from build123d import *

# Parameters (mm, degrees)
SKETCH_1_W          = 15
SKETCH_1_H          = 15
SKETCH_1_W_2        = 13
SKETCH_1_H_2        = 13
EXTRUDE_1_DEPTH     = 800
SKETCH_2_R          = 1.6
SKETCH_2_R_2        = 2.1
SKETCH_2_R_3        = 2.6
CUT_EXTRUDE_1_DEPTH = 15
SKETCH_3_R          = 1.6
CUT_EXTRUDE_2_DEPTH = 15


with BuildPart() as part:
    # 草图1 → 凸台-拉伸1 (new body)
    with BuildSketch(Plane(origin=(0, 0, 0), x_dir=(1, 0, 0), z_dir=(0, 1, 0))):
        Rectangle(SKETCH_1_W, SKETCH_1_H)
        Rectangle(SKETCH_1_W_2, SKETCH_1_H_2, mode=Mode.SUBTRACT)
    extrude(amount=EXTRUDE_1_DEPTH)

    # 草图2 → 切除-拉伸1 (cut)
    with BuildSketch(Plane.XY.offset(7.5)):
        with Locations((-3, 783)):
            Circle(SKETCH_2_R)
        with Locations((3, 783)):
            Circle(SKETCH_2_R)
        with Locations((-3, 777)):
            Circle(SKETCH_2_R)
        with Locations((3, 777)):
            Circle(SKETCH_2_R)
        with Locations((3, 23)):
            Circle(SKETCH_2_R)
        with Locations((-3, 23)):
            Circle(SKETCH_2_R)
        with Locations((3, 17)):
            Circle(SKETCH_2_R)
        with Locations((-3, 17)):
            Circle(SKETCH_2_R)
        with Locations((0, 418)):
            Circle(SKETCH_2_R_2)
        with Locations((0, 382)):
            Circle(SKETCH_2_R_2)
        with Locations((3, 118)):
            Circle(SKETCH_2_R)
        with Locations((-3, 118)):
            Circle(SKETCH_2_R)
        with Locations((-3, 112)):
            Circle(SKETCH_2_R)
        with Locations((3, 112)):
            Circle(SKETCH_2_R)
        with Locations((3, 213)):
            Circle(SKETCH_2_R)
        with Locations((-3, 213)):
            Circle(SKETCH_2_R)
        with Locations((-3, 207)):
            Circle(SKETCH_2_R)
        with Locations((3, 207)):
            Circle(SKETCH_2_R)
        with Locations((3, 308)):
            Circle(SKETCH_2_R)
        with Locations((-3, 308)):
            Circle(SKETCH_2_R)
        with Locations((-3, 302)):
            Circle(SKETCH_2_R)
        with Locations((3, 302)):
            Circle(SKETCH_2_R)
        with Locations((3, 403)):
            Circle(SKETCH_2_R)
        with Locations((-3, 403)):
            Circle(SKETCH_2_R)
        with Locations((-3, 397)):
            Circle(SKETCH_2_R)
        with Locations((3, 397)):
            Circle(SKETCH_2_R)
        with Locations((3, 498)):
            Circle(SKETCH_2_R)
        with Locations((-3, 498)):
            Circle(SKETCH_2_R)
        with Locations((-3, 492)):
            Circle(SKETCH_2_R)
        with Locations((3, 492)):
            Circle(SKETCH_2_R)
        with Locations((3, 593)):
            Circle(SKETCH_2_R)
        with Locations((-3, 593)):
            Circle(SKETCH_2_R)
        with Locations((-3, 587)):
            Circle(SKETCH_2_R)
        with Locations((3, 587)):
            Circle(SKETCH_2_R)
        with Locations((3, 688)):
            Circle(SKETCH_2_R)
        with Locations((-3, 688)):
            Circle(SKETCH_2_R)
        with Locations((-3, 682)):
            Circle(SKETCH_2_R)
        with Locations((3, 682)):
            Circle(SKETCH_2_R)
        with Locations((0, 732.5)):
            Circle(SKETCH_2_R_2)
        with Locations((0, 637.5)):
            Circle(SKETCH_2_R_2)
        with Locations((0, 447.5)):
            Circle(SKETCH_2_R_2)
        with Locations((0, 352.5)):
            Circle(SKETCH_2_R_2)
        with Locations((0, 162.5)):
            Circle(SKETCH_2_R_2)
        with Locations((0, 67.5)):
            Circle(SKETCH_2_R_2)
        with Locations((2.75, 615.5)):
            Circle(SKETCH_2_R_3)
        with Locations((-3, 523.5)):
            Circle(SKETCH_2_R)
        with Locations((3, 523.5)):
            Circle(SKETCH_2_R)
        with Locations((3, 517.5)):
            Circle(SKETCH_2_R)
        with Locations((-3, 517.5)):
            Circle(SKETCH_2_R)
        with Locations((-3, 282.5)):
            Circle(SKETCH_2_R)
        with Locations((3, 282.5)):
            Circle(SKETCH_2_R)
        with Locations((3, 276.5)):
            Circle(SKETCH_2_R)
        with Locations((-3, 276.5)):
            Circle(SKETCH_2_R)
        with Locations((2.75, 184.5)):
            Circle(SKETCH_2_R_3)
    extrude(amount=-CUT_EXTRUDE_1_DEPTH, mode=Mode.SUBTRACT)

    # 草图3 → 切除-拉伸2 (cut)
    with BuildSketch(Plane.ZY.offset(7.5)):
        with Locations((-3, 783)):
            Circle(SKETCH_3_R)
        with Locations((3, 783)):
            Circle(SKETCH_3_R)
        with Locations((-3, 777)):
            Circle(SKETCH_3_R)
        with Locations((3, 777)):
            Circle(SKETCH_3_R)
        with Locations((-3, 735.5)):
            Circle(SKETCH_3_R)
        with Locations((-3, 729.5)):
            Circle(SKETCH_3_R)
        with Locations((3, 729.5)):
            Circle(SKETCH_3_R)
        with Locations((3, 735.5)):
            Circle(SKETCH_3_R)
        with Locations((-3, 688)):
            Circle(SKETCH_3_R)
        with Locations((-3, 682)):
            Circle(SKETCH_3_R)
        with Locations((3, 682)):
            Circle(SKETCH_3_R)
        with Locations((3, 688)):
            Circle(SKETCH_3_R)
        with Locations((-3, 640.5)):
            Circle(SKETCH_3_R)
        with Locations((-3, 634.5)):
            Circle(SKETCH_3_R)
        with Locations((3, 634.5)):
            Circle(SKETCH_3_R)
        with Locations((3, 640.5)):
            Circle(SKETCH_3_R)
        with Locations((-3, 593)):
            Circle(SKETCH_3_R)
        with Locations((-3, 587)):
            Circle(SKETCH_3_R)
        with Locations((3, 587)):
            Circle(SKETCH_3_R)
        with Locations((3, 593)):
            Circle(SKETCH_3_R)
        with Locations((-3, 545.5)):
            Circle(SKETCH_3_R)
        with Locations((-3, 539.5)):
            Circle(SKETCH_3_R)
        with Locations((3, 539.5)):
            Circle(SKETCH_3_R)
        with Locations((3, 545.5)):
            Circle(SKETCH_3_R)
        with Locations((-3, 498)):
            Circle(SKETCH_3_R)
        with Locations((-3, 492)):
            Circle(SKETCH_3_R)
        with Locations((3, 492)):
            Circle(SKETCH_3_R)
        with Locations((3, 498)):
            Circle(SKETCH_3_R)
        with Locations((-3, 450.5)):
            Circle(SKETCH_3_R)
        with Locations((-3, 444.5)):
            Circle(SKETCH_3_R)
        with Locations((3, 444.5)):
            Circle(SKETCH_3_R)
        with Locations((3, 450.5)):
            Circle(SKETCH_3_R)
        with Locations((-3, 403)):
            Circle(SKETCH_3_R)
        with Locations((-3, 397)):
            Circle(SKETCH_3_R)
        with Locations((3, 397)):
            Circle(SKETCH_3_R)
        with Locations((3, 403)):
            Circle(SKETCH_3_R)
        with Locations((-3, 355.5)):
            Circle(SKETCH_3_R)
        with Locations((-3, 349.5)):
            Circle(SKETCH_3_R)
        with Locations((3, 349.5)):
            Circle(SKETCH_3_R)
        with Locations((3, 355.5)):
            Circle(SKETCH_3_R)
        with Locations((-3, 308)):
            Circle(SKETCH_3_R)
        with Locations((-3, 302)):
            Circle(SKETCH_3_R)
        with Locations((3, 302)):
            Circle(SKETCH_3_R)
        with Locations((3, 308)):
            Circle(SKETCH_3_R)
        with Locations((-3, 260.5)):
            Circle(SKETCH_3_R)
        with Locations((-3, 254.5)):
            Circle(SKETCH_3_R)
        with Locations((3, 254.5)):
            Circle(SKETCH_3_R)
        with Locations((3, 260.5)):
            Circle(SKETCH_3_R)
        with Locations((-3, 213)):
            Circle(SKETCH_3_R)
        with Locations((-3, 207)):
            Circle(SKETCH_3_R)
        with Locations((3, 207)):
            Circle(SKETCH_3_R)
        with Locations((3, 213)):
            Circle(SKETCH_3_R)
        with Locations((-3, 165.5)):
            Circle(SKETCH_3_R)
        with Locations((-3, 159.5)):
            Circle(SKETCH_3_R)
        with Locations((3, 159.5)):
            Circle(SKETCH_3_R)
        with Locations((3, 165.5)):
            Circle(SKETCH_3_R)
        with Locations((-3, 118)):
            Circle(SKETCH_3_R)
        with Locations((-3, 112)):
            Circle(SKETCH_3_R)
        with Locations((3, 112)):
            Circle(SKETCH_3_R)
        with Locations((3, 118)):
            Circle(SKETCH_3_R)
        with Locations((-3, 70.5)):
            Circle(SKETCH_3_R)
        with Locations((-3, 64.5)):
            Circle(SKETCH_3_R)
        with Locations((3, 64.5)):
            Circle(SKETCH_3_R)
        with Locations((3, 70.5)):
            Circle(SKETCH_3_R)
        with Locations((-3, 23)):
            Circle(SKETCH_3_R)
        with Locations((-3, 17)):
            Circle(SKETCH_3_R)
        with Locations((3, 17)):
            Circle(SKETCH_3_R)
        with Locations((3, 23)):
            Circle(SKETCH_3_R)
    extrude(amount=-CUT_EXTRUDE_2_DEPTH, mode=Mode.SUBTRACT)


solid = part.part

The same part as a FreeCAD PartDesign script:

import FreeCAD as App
import Part
import Sketcher
Q = App.Units.Quantity

doc = App.newDocument("Part")
body = doc.addObject("PartDesign::Body", "Body")

# Sketch on XZ plane
sketch1 = body.newObject("Sketcher::SketchObject", "Sketch")
sketch1.AttachmentSupport = (doc.getObject("XZ_Plane"), [""])
sketch1.MapMode = "FlatFace"
sketch1.addGeometry([
    Part.LineSegment(App.Vector(-7.5, -7.5, 0), App.Vector(-7.5, 7.5, 0)),  # 0
    Part.LineSegment(App.Vector(-7.5, 7.5, 0), App.Vector(7.5, 7.5, 0)),  # 1
    Part.LineSegment(App.Vector(7.5, 7.5, 0), App.Vector(7.5, -7.5, 0)),  # 2
    Part.LineSegment(App.Vector(7.5, -7.5, 0), App.Vector(-7.5, -7.5, 0)),  # 3
    Part.LineSegment(App.Vector(6.5, 6.5, 0), App.Vector(-6.5, 6.5, 0)),  # 4
    Part.LineSegment(App.Vector(-6.5, 6.5, 0), App.Vector(-6.5, -6.5, 0)),  # 5
    Part.LineSegment(App.Vector(-6.5, -6.5, 0), App.Vector(6.5, -6.5, 0)),  # 6
    Part.LineSegment(App.Vector(6.5, -6.5, 0), App.Vector(6.5, 6.5, 0)),  # 7
], False)
sketch1.addConstraint([
    Sketcher.Constraint("Coincident", 0, 2, 1, 1),
    Sketcher.Constraint("Coincident", 1, 2, 2, 1),
    Sketcher.Constraint("Coincident", 2, 2, 3, 1),
    Sketcher.Constraint("Coincident", 3, 2, 0, 1),
    Sketcher.Constraint("Coincident", 4, 2, 5, 1),
    Sketcher.Constraint("Coincident", 5, 2, 6, 1),
    Sketcher.Constraint("Coincident", 6, 2, 7, 1),
    Sketcher.Constraint("Coincident", 7, 2, 4, 1),
    Sketcher.Constraint("Vertical", 0),
    Sketcher.Constraint("Horizontal", 1),
    Sketcher.Constraint("Vertical", 2),
    Sketcher.Constraint("Horizontal", 3),
    Sketcher.Constraint("Horizontal", 4),
    Sketcher.Constraint("Vertical", 5),
    Sketcher.Constraint("Horizontal", 6),
    Sketcher.Constraint("Vertical", 7),
    Sketcher.Constraint("Symmetric", 0, 2, 2, 2, -1, 1),
    Sketcher.Constraint("Symmetric", 4, 2, 6, 2, -1, 1),
    Sketcher.Constraint("Equal", 3, 0),
    Sketcher.Constraint("Equal", 6, 5),
    Sketcher.Constraint("DistanceX", 1, 1, 1, 2, Q("15 mm")),
    Sketcher.Constraint("DistanceX", 4, 2, 4, 1, Q("13 mm")),
])
pad1 = body.newObject("PartDesign::Pad", "Pad")
pad1.Profile = sketch1
pad1.Length = 800
pad1.Reversed = True

# Sketch on XY plane
sketch2 = body.newObject("Sketcher::SketchObject", "Sketch001")
sketch2.AttachmentSupport = (doc.getObject("XY_Plane"), [""])
sketch2.MapMode = "FlatFace"
sketch2.AttachmentOffset = App.Placement(App.Vector(0, 0, 7.5), App.Rotation())
sketch2.addGeometry([
    Part.Circle(App.Vector(-3, 783, 0), App.Vector(0, 0, 1), 1.6),  # 0
    Part.Circle(App.Vector(3, 783, 0), App.Vector(0, 0, 1), 1.6),  # 1
    Part.Circle(App.Vector(-3, 777, 0), App.Vector(0, 0, 1), 1.6),  # 2
    Part.Circle(App.Vector(3, 777, 0), App.Vector(0, 0, 1), 1.6),  # 3
    Part.Circle(App.Vector(3, 23, 0), App.Vector(0, 0, 1), 1.6),  # 4
    Part.Circle(App.Vector(-3, 23, 0), App.Vector(0, 0, 1), 1.6),  # 5
    Part.Circle(App.Vector(3, 17, 0), App.Vector(0, 0, 1), 1.6),  # 6
    Part.Circle(App.Vector(-3, 17, 0), App.Vector(0, 0, 1), 1.6),  # 7
    Part.Circle(App.Vector(0, 418, 0), App.Vector(0, 0, 1), 2.1),  # 8
    Part.Circle(App.Vector(0, 382, 0), App.Vector(0, 0, 1), 2.1),  # 9
    Part.Circle(App.Vector(3, 118, 0), App.Vector(0, 0, 1), 1.6),  # 10
    Part.Circle(App.Vector(-3, 118, 0), App.Vector(0, 0, 1), 1.6),  # 11
    Part.Circle(App.Vector(-3, 112, 0), App.Vector(0, 0, 1), 1.6),  # 12
    Part.Circle(App.Vector(3, 112, 0), App.Vector(0, 0, 1), 1.6),  # 13
    Part.Circle(App.Vector(3, 213, 0), App.Vector(0, 0, 1), 1.6),  # 14
    Part.Circle(App.Vector(-3, 213, 0), App.Vector(0, 0, 1), 1.6),  # 15
    Part.Circle(App.Vector(-3, 207, 0), App.Vector(0, 0, 1), 1.6),  # 16
    Part.Circle(App.Vector(3, 207, 0), App.Vector(0, 0, 1), 1.6),  # 17
    Part.Circle(App.Vector(3, 308, 0), App.Vector(0, 0, 1), 1.6),  # 18
    Part.Circle(App.Vector(-3, 308, 0), App.Vector(0, 0, 1), 1.6),  # 19
    Part.Circle(App.Vector(-3, 302, 0), App.Vector(0, 0, 1), 1.6),  # 20
    Part.Circle(App.Vector(3, 302, 0), App.Vector(0, 0, 1), 1.6),  # 21
    Part.Circle(App.Vector(3, 403, 0), App.Vector(0, 0, 1), 1.6),  # 22
    Part.Circle(App.Vector(-3, 403, 0), App.Vector(0, 0, 1), 1.6),  # 23
    Part.Circle(App.Vector(-3, 397, 0), App.Vector(0, 0, 1), 1.6),  # 24
    Part.Circle(App.Vector(3, 397, 0), App.Vector(0, 0, 1), 1.6),  # 25
    Part.Circle(App.Vector(3, 498, 0), App.Vector(0, 0, 1), 1.6),  # 26
    Part.Circle(App.Vector(-3, 498, 0), App.Vector(0, 0, 1), 1.6),  # 27
    Part.Circle(App.Vector(-3, 492, 0), App.Vector(0, 0, 1), 1.6),  # 28
    Part.Circle(App.Vector(3, 492, 0), App.Vector(0, 0, 1), 1.6),  # 29
    Part.Circle(App.Vector(3, 593, 0), App.Vector(0, 0, 1), 1.6),  # 30
    Part.Circle(App.Vector(-3, 593, 0), App.Vector(0, 0, 1), 1.6),  # 31
    Part.Circle(App.Vector(-3, 587, 0), App.Vector(0, 0, 1), 1.6),  # 32
    Part.Circle(App.Vector(3, 587, 0), App.Vector(0, 0, 1), 1.6),  # 33
    Part.Circle(App.Vector(3, 688, 0), App.Vector(0, 0, 1), 1.6),  # 34
    Part.Circle(App.Vector(-3, 688, 0), App.Vector(0, 0, 1), 1.6),  # 35
    Part.Circle(App.Vector(-3, 682, 0), App.Vector(0, 0, 1), 1.6),  # 36
    Part.Circle(App.Vector(3, 682, 0), App.Vector(0, 0, 1), 1.6),  # 37
    Part.Circle(App.Vector(0, 732.5, 0), App.Vector(0, 0, 1), 2.1),  # 38
    Part.Circle(App.Vector(0, 637.5, 0), App.Vector(0, 0, 1), 2.1),  # 39
    Part.Circle(App.Vector(0, 447.5, 0), App.Vector(0, 0, 1), 2.1),  # 40
    Part.Circle(App.Vector(0, 352.5, 0), App.Vector(0, 0, 1), 2.1),  # 41
    Part.Circle(App.Vector(0, 162.5, 0), App.Vector(0, 0, 1), 2.1),  # 42
    Part.Circle(App.Vector(0, 67.5, 0), App.Vector(0, 0, 1), 2.1),  # 43
    Part.Circle(App.Vector(2.75, 615.5, 0), App.Vector(0, 0, 1), 2.6),  # 44
    Part.Circle(App.Vector(-3, 523.5, 0), App.Vector(0, 0, 1), 1.6),  # 45
    Part.Circle(App.Vector(3, 523.5, 0), App.Vector(0, 0, 1), 1.6),  # 46
    Part.Circle(App.Vector(3, 517.5, 0), App.Vector(0, 0, 1), 1.6),  # 47
    Part.Circle(App.Vector(-3, 517.5, 0), App.Vector(0, 0, 1), 1.6),  # 48
    Part.Circle(App.Vector(-3, 282.5, 0), App.Vector(0, 0, 1), 1.6),  # 49
    Part.Circle(App.Vector(3, 282.5, 0), App.Vector(0, 0, 1), 1.6),  # 50
    Part.Circle(App.Vector(3, 276.5, 0), App.Vector(0, 0, 1), 1.6),  # 51
    Part.Circle(App.Vector(-3, 276.5, 0), App.Vector(0, 0, 1), 1.6),  # 52
    Part.Circle(App.Vector(2.75, 184.5, 0), App.Vector(0, 0, 1), 2.6),  # 53
], False)
sketch2.addConstraint([
    Sketcher.Constraint("Equal", 0, 1),
    Sketcher.Constraint("Equal", 1, 2),
    Sketcher.Constraint("Equal", 2, 3),
    Sketcher.Constraint("Equal", 3, 4),
    Sketcher.Constraint("Equal", 4, 5),
    Sketcher.Constraint("Equal", 5, 6),
    Sketcher.Constraint("Equal", 6, 7),
    Sketcher.Constraint("Equal", 8, 9),
    Sketcher.Constraint("Equal", 7, 10),
    Sketcher.Constraint("Equal", 10, 11),
    Sketcher.Constraint("Equal", 11, 12),
    Sketcher.Constraint("Equal", 12, 13),
    Sketcher.Constraint("Equal", 13, 14),
    Sketcher.Constraint("Equal", 14, 15),
    Sketcher.Constraint("Equal", 15, 16),
    Sketcher.Constraint("Equal", 16, 17),
    Sketcher.Constraint("Equal", 17, 18),
    Sketcher.Constraint("Equal", 18, 19),
    Sketcher.Constraint("Equal", 19, 20),
    Sketcher.Constraint("Equal", 20, 21),
    Sketcher.Constraint("Equal", 21, 22),
    Sketcher.Constraint("Equal", 22, 23),
    Sketcher.Constraint("Equal", 23, 24),
    Sketcher.Constraint("Equal", 24, 25),
    Sketcher.Constraint("Equal", 25, 26),
    Sketcher.Constraint("Equal", 26, 27),
    Sketcher.Constraint("Equal", 27, 28),
    Sketcher.Constraint("Equal", 28, 29),
    Sketcher.Constraint("Equal", 29, 30),
    Sketcher.Constraint("Equal", 30, 31),
    Sketcher.Constraint("Equal", 31, 32),
    Sketcher.Constraint("Equal", 32, 33),
    Sketcher.Constraint("Equal", 33, 34),
    Sketcher.Constraint("Equal", 34, 35),
    Sketcher.Constraint("Equal", 35, 36),
    Sketcher.Constraint("Equal", 36, 37),
    Sketcher.Constraint("Equal", 9, 38),
    Sketcher.Constraint("Equal", 38, 39),
    Sketcher.Constraint("Equal", 39, 40),
    Sketcher.Constraint("Equal", 40, 41),
    Sketcher.Constraint("Equal", 41, 42),
    Sketcher.Constraint("Equal", 42, 43),
    Sketcher.Constraint("Equal", 37, 45),
    Sketcher.Constraint("Equal", 45, 46),
    Sketcher.Constraint("Equal", 46, 47),
    Sketcher.Constraint("Equal", 47, 48),
    Sketcher.Constraint("Equal", 48, 49),
    Sketcher.Constraint("Equal", 49, 50),
    Sketcher.Constraint("Equal", 50, 51),
    Sketcher.Constraint("Equal", 51, 52),
    Sketcher.Constraint("Equal", 44, 53),
    Sketcher.Constraint("Symmetric", 0, 3, 1, 3, -2),
    Sketcher.Constraint("Symmetric", 2, 3, 3, 3, -2),
    Sketcher.Constraint("Symmetric", 4, 3, 5, 3, -2),
    Sketcher.Constraint("Symmetric", 6, 3, 7, 3, -2),
    Sketcher.Constraint("Symmetric", 10, 3, 11, 3, -2),
    Sketcher.Constraint("Symmetric", 12, 3, 13, 3, -2),
    Sketcher.Constraint("Symmetric", 14, 3, 15, 3, -2),
    Sketcher.Constraint("Symmetric", 16, 3, 17, 3, -2),
    Sketcher.Constraint("Symmetric", 18, 3, 19, 3, -2),
    Sketcher.Constraint("Symmetric", 20, 3, 21, 3, -2),
    Sketcher.Constraint("Symmetric", 22, 3, 23, 3, -2),
    Sketcher.Constraint("Symmetric", 24, 3, 25, 3, -2),
    Sketcher.Constraint("Symmetric", 26, 3, 27, 3, -2),
    Sketcher.Constraint("Symmetric", 28, 3, 29, 3, -2),
    Sketcher.Constraint("Symmetric", 30, 3, 31, 3, -2),
    Sketcher.Constraint("Symmetric", 32, 3, 33, 3, -2),
    Sketcher.Constraint("Symmetric", 34, 3, 35, 3, -2),
    Sketcher.Constraint("Symmetric", 36, 3, 37, 3, -2),
    Sketcher.Constraint("Symmetric", 45, 3, 46, 3, -2),
    Sketcher.Constraint("Symmetric", 47, 3, 48, 3, -2),
    Sketcher.Constraint("Symmetric", 49, 3, 50, 3, -2),
    Sketcher.Constraint("Symmetric", 51, 3, 52, 3, -2),
    Sketcher.Constraint("PointOnObject", 8, 3, -2),
    Sketcher.Constraint("PointOnObject", 9, 3, -2),
    Sketcher.Constraint("PointOnObject", 38, 3, -2),
    Sketcher.Constraint("PointOnObject", 39, 3, -2),
    Sketcher.Constraint("PointOnObject", 40, 3, -2),
    Sketcher.Constraint("PointOnObject", 41, 3, -2),
    Sketcher.Constraint("PointOnObject", 42, 3, -2),
    Sketcher.Constraint("PointOnObject", 43, 3, -2),
    Sketcher.Constraint("Vertical", 0, 3, 2, 3),
    Sketcher.Constraint("Vertical", 3, 3, 4, 3),
    Sketcher.Constraint("Vertical", 4, 3, 6, 3),
    Sketcher.Constraint("Vertical", 6, 3, 10, 3),
    Sketcher.Constraint("Vertical", 11, 3, 12, 3),
    Sketcher.Constraint("Vertical", 13, 3, 14, 3),
    Sketcher.Constraint("Vertical", 15, 3, 16, 3),
    Sketcher.Constraint("Vertical", 17, 3, 18, 3),
    Sketcher.Constraint("Vertical", 19, 3, 20, 3),
    Sketcher.Constraint("Vertical", 21, 3, 22, 3),
    Sketcher.Constraint("Vertical", 23, 3, 24, 3),
    Sketcher.Constraint("Vertical", 25, 3, 26, 3),
    Sketcher.Constraint("Vertical", 27, 3, 28, 3),
    Sketcher.Constraint("Vertical", 29, 3, 30, 3),
    Sketcher.Constraint("Vertical", 31, 3, 32, 3),
    Sketcher.Constraint("Vertical", 33, 3, 34, 3),
    Sketcher.Constraint("Vertical", 35, 3, 36, 3),
    Sketcher.Constraint("Vertical", 36, 3, 45, 3),
    Sketcher.Constraint("Vertical", 46, 3, 47, 3),
    Sketcher.Constraint("Vertical", 48, 3, 49, 3),
    Sketcher.Constraint("Vertical", 50, 3, 51, 3),
    Sketcher.Constraint("Vertical", 44, 3, 53, 3),
    Sketcher.Constraint("Diameter", 0, Q("3.2 mm")),
    Sketcher.Constraint("Diameter", 8, Q("4.2 mm")),
    Sketcher.Constraint("Diameter", 44, Q("5.2 mm")),
    Sketcher.Constraint("DistanceX", 0, 3, -1, 1, Q("3 mm")),
    Sketcher.Constraint("DistanceY", -1, 1, 0, 3, Q("783 mm")),
    Sketcher.Constraint("DistanceY", -1, 1, 2, 3, Q("777 mm")),
    Sketcher.Constraint("DistanceY", -1, 1, 4, 3, Q("23 mm")),
    Sketcher.Constraint("DistanceY", -1, 1, 6, 3, Q("17 mm")),
    Sketcher.Constraint("DistanceY", -1, 1, 8, 3, Q("418 mm")),
    Sketcher.Constraint("DistanceY", -1, 1, 9, 3, Q("382 mm")),
    Sketcher.Constraint("DistanceY", -1, 1, 10, 3, Q("118 mm")),
    Sketcher.Constraint("DistanceY", -1, 1, 12, 3, Q("112 mm")),
    Sketcher.Constraint("DistanceY", -1, 1, 14, 3, Q("213 mm")),
    Sketcher.Constraint("DistanceY", -1, 1, 16, 3, Q("207 mm")),
    Sketcher.Constraint("DistanceY", -1, 1, 18, 3, Q("308 mm")),
    Sketcher.Constraint("DistanceY", -1, 1, 20, 3, Q("302 mm")),
    Sketcher.Constraint("DistanceY", -1, 1, 22, 3, Q("403 mm")),
    Sketcher.Constraint("DistanceY", -1, 1, 24, 3, Q("397 mm")),
    Sketcher.Constraint("DistanceY", -1, 1, 26, 3, Q("498 mm")),
    Sketcher.Constraint("DistanceY", -1, 1, 28, 3, Q("492 mm")),
    Sketcher.Constraint("DistanceY", -1, 1, 30, 3, Q("593 mm")),
    Sketcher.Constraint("DistanceY", -1, 1, 32, 3, Q("587 mm")),
    Sketcher.Constraint("DistanceY", -1, 1, 34, 3, Q("688 mm")),
    Sketcher.Constraint("DistanceY", -1, 1, 36, 3, Q("682 mm")),
    Sketcher.Constraint("DistanceY", 44, 3, 39, 3, Q("22 mm")),
    Sketcher.Constraint("DistanceY", 47, 3, 46, 3, Q("6 mm")),
    Sketcher.Constraint("DistanceY", 51, 3, 50, 3, Q("6 mm")),
    Sketcher.Constraint("DistanceY", 42, 3, 53, 3, Q("22 mm")),
    Sketcher.Constraint("DistanceY", -1, 1, 38, 3, Q("732.5 mm")),
    Sketcher.Constraint("DistanceY", -1, 1, 39, 3, Q("637.5 mm")),
    Sketcher.Constraint("DistanceY", -1, 1, 40, 3, Q("447.5 mm")),
    Sketcher.Constraint("DistanceY", -1, 1, 41, 3, Q("352.5 mm")),
    Sketcher.Constraint("DistanceY", -1, 1, 42, 3, Q("162.5 mm")),
    Sketcher.Constraint("DistanceY", -1, 1, 43, 3, Q("67.5 mm")),
    Sketcher.Constraint("DistanceY", -1, 1, 45, 3, Q("523.5 mm")),
    Sketcher.Constraint("DistanceY", -1, 1, 49, 3, Q("282.5 mm")),
    Sketcher.Constraint("DistanceX", -1, 1, 44, 3, Q("2.75 mm")),
])
pocket1 = body.newObject("PartDesign::Pocket", "Pocket")
pocket1.Profile = sketch2
pocket1.Length = 15

# Sketch on YZ plane
sketch3 = body.newObject("Sketcher::SketchObject", "Sketch002")
sketch3.AttachmentSupport = (doc.getObject("YZ_Plane"), [""])
sketch3.MapMode = "FlatFace"
sketch3.AttachmentOffset = App.Placement(App.Vector(0, 0, -7.5), App.Rotation())
sketch3.addGeometry([
    Part.Circle(App.Vector(783, -3, 0), App.Vector(0, 0, 1), 1.6),  # 0
    Part.Circle(App.Vector(783, 3, 0), App.Vector(0, 0, 1), 1.6),  # 1
    Part.Circle(App.Vector(777, -3, 0), App.Vector(0, 0, 1), 1.6),  # 2
    Part.Circle(App.Vector(777, 3, 0), App.Vector(0, 0, 1), 1.6),  # 3
    Part.Circle(App.Vector(735.5, -3, 0), App.Vector(0, 0, 1), 1.6),  # 4
    Part.Circle(App.Vector(729.5, -3, 0), App.Vector(0, 0, 1), 1.6),  # 5
    Part.Circle(App.Vector(729.5, 3, 0), App.Vector(0, 0, 1), 1.6),  # 6
    Part.Circle(App.Vector(735.5, 3, 0), App.Vector(0, 0, 1), 1.6),  # 7
    Part.Circle(App.Vector(688, -3, 0), App.Vector(0, 0, 1), 1.6),  # 8
    Part.Circle(App.Vector(682, -3, 0), App.Vector(0, 0, 1), 1.6),  # 9
    Part.Circle(App.Vector(682, 3, 0), App.Vector(0, 0, 1), 1.6),  # 10
    Part.Circle(App.Vector(688, 3, 0), App.Vector(0, 0, 1), 1.6),  # 11
    Part.Circle(App.Vector(640.5, -3, 0), App.Vector(0, 0, 1), 1.6),  # 12
    Part.Circle(App.Vector(634.5, -3, 0), App.Vector(0, 0, 1), 1.6),  # 13
    Part.Circle(App.Vector(634.5, 3, 0), App.Vector(0, 0, 1), 1.6),  # 14
    Part.Circle(App.Vector(640.5, 3, 0), App.Vector(0, 0, 1), 1.6),  # 15
    Part.Circle(App.Vector(593, -3, 0), App.Vector(0, 0, 1), 1.6),  # 16
    Part.Circle(App.Vector(587, -3, 0), App.Vector(0, 0, 1), 1.6),  # 17
    Part.Circle(App.Vector(587, 3, 0), App.Vector(0, 0, 1), 1.6),  # 18
    Part.Circle(App.Vector(593, 3, 0), App.Vector(0, 0, 1), 1.6),  # 19
    Part.Circle(App.Vector(545.5, -3, 0), App.Vector(0, 0, 1), 1.6),  # 20
    Part.Circle(App.Vector(539.5, -3, 0), App.Vector(0, 0, 1), 1.6),  # 21
    Part.Circle(App.Vector(539.5, 3, 0), App.Vector(0, 0, 1), 1.6),  # 22
    Part.Circle(App.Vector(545.5, 3, 0), App.Vector(0, 0, 1), 1.6),  # 23
    Part.Circle(App.Vector(498, -3, 0), App.Vector(0, 0, 1), 1.6),  # 24
    Part.Circle(App.Vector(492, -3, 0), App.Vector(0, 0, 1), 1.6),  # 25
    Part.Circle(App.Vector(492, 3, 0), App.Vector(0, 0, 1), 1.6),  # 26
    Part.Circle(App.Vector(498, 3, 0), App.Vector(0, 0, 1), 1.6),  # 27
    Part.Circle(App.Vector(450.5, -3, 0), App.Vector(0, 0, 1), 1.6),  # 28
    Part.Circle(App.Vector(444.5, -3, 0), App.Vector(0, 0, 1), 1.6),  # 29
    Part.Circle(App.Vector(444.5, 3, 0), App.Vector(0, 0, 1), 1.6),  # 30
    Part.Circle(App.Vector(450.5, 3, 0), App.Vector(0, 0, 1), 1.6),  # 31
    Part.Circle(App.Vector(403, -3, 0), App.Vector(0, 0, 1), 1.6),  # 32
    Part.Circle(App.Vector(397, -3, 0), App.Vector(0, 0, 1), 1.6),  # 33
    Part.Circle(App.Vector(397, 3, 0), App.Vector(0, 0, 1), 1.6),  # 34
    Part.Circle(App.Vector(403, 3, 0), App.Vector(0, 0, 1), 1.6),  # 35
    Part.Circle(App.Vector(355.5, -3, 0), App.Vector(0, 0, 1), 1.6),  # 36
    Part.Circle(App.Vector(349.5, -3, 0), App.Vector(0, 0, 1), 1.6),  # 37
    Part.Circle(App.Vector(349.5, 3, 0), App.Vector(0, 0, 1), 1.6),  # 38
    Part.Circle(App.Vector(355.5, 3, 0), App.Vector(0, 0, 1), 1.6),  # 39
    Part.Circle(App.Vector(308, -3, 0), App.Vector(0, 0, 1), 1.6),  # 40
    Part.Circle(App.Vector(302, -3, 0), App.Vector(0, 0, 1), 1.6),  # 41
    Part.Circle(App.Vector(302, 3, 0), App.Vector(0, 0, 1), 1.6),  # 42
    Part.Circle(App.Vector(308, 3, 0), App.Vector(0, 0, 1), 1.6),  # 43
    Part.Circle(App.Vector(260.5, -3, 0), App.Vector(0, 0, 1), 1.6),  # 44
    Part.Circle(App.Vector(254.5, -3, 0), App.Vector(0, 0, 1), 1.6),  # 45
    Part.Circle(App.Vector(254.5, 3, 0), App.Vector(0, 0, 1), 1.6),  # 46
    Part.Circle(App.Vector(260.5, 3, 0), App.Vector(0, 0, 1), 1.6),  # 47
    Part.Circle(App.Vector(213, -3, 0), App.Vector(0, 0, 1), 1.6),  # 48
    Part.Circle(App.Vector(207, -3, 0), App.Vector(0, 0, 1), 1.6),  # 49
    Part.Circle(App.Vector(207, 3, 0), App.Vector(0, 0, 1), 1.6),  # 50
    Part.Circle(App.Vector(213, 3, 0), App.Vector(0, 0, 1), 1.6),  # 51
    Part.Circle(App.Vector(165.5, -3, 0), App.Vector(0, 0, 1), 1.6),  # 52
    Part.Circle(App.Vector(159.5, -3, 0), App.Vector(0, 0, 1), 1.6),  # 53
    Part.Circle(App.Vector(159.5, 3, 0), App.Vector(0, 0, 1), 1.6),  # 54
    Part.Circle(App.Vector(165.5, 3, 0), App.Vector(0, 0, 1), 1.6),  # 55
    Part.Circle(App.Vector(118, -3, 0), App.Vector(0, 0, 1), 1.6),  # 56
    Part.Circle(App.Vector(112, -3, 0), App.Vector(0, 0, 1), 1.6),  # 57
    Part.Circle(App.Vector(112, 3, 0), App.Vector(0, 0, 1), 1.6),  # 58
    Part.Circle(App.Vector(118, 3, 0), App.Vector(0, 0, 1), 1.6),  # 59
    Part.Circle(App.Vector(70.5, -3, 0), App.Vector(0, 0, 1), 1.6),  # 60
    Part.Circle(App.Vector(64.5, -3, 0), App.Vector(0, 0, 1), 1.6),  # 61
    Part.Circle(App.Vector(64.5, 3, 0), App.Vector(0, 0, 1), 1.6),  # 62
    Part.Circle(App.Vector(70.5, 3, 0), App.Vector(0, 0, 1), 1.6),  # 63
    Part.Circle(App.Vector(23, -3, 0), App.Vector(0, 0, 1), 1.6),  # 64
    Part.Circle(App.Vector(17, -3, 0), App.Vector(0, 0, 1), 1.6),  # 65
    Part.Circle(App.Vector(17, 3, 0), App.Vector(0, 0, 1), 1.6),  # 66
    Part.Circle(App.Vector(23, 3, 0), App.Vector(0, 0, 1), 1.6),  # 67
], False)
sketch3.addConstraint([
    Sketcher.Constraint("Equal", 0, 1),
    Sketcher.Constraint("Equal", 1, 2),
    Sketcher.Constraint("Equal", 2, 3),
    Sketcher.Constraint("Equal", 3, 4),
    Sketcher.Constraint("Equal", 4, 5),
    Sketcher.Constraint("Equal", 5, 6),
    Sketcher.Constraint("Equal", 6, 7),
    Sketcher.Constraint("Equal", 7, 8),
    Sketcher.Constraint("Equal", 8, 9),
    Sketcher.Constraint("Equal", 9, 10),
    Sketcher.Constraint("Equal", 10, 11),
    Sketcher.Constraint("Equal", 11, 12),
    Sketcher.Constraint("Equal", 12, 13),
    Sketcher.Constraint("Equal", 13, 14),
    Sketcher.Constraint("Equal", 14, 15),
    Sketcher.Constraint("Equal", 15, 16),
    Sketcher.Constraint("Equal", 16, 17),
    Sketcher.Constraint("Equal", 17, 18),
    Sketcher.Constraint("Equal", 18, 19),
    Sketcher.Constraint("Equal", 19, 20),
    Sketcher.Constraint("Equal", 20, 21),
    Sketcher.Constraint("Equal", 21, 22),
    Sketcher.Constraint("Equal", 22, 23),
    Sketcher.Constraint("Equal", 23, 24),
    Sketcher.Constraint("Equal", 24, 25),
    Sketcher.Constraint("Equal", 25, 26),
    Sketcher.Constraint("Equal", 26, 27),
    Sketcher.Constraint("Equal", 27, 28),
    Sketcher.Constraint("Equal", 28, 29),
    Sketcher.Constraint("Equal", 29, 30),
    Sketcher.Constraint("Equal", 30, 31),
    Sketcher.Constraint("Equal", 31, 32),
    Sketcher.Constraint("Equal", 32, 33),
    Sketcher.Constraint("Equal", 33, 34),
    Sketcher.Constraint("Equal", 34, 35),
    Sketcher.Constraint("Equal", 35, 36),
    Sketcher.Constraint("Equal", 36, 37),
    Sketcher.Constraint("Equal", 37, 38),
    Sketcher.Constraint("Equal", 38, 39),
    Sketcher.Constraint("Equal", 39, 40),
    Sketcher.Constraint("Equal", 40, 41),
    Sketcher.Constraint("Equal", 41, 42),
    Sketcher.Constraint("Equal", 42, 43),
    Sketcher.Constraint("Equal", 43, 44),
    Sketcher.Constraint("Equal", 44, 45),
    Sketcher.Constraint("Equal", 45, 46),
    Sketcher.Constraint("Equal", 46, 47),
    Sketcher.Constraint("Equal", 47, 48),
    Sketcher.Constraint("Equal", 48, 49),
    Sketcher.Constraint("Equal", 49, 50),
    Sketcher.Constraint("Equal", 50, 51),
    Sketcher.Constraint("Equal", 51, 52),
    Sketcher.Constraint("Equal", 52, 53),
    Sketcher.Constraint("Equal", 53, 54),
    Sketcher.Constraint("Equal", 54, 55),
    Sketcher.Constraint("Equal", 55, 56),
    Sketcher.Constraint("Equal", 56, 57),
    Sketcher.Constraint("Equal", 57, 58),
    Sketcher.Constraint("Equal", 58, 59),
    Sketcher.Constraint("Equal", 59, 60),
    Sketcher.Constraint("Equal", 60, 61),
    Sketcher.Constraint("Equal", 61, 62),
    Sketcher.Constraint("Equal", 62, 63),
    Sketcher.Constraint("Equal", 63, 64),
    Sketcher.Constraint("Equal", 64, 65),
    Sketcher.Constraint("Equal", 65, 66),
    Sketcher.Constraint("Equal", 66, 67),
    Sketcher.Constraint("Symmetric", 0, 3, 1, 3, -1),
    Sketcher.Constraint("Symmetric", 2, 3, 3, 3, -1),
    Sketcher.Constraint("Symmetric", 5, 3, 6, 3, -1),
    Sketcher.Constraint("Symmetric", 4, 3, 7, 3, -1),
    Sketcher.Constraint("Symmetric", 9, 3, 10, 3, -1),
    Sketcher.Constraint("Symmetric", 8, 3, 11, 3, -1),
    Sketcher.Constraint("Symmetric", 13, 3, 14, 3, -1),
    Sketcher.Constraint("Symmetric", 12, 3, 15, 3, -1),
    Sketcher.Constraint("Symmetric", 17, 3, 18, 3, -1),
    Sketcher.Constraint("Symmetric", 16, 3, 19, 3, -1),
    Sketcher.Constraint("Symmetric", 21, 3, 22, 3, -1),
    Sketcher.Constraint("Symmetric", 20, 3, 23, 3, -1),
    Sketcher.Constraint("Symmetric", 25, 3, 26, 3, -1),
    Sketcher.Constraint("Symmetric", 24, 3, 27, 3, -1),
    Sketcher.Constraint("Symmetric", 29, 3, 30, 3, -1),
    Sketcher.Constraint("Symmetric", 28, 3, 31, 3, -1),
    Sketcher.Constraint("Symmetric", 33, 3, 34, 3, -1),
    Sketcher.Constraint("Symmetric", 32, 3, 35, 3, -1),
    Sketcher.Constraint("Symmetric", 37, 3, 38, 3, -1),
    Sketcher.Constraint("Symmetric", 36, 3, 39, 3, -1),
    Sketcher.Constraint("Symmetric", 41, 3, 42, 3, -1),
    Sketcher.Constraint("Symmetric", 40, 3, 43, 3, -1),
    Sketcher.Constraint("Symmetric", 45, 3, 46, 3, -1),
    Sketcher.Constraint("Symmetric", 44, 3, 47, 3, -1),
    Sketcher.Constraint("Symmetric", 49, 3, 50, 3, -1),
    Sketcher.Constraint("Symmetric", 48, 3, 51, 3, -1),
    Sketcher.Constraint("Symmetric", 53, 3, 54, 3, -1),
    Sketcher.Constraint("Symmetric", 52, 3, 55, 3, -1),
    Sketcher.Constraint("Symmetric", 57, 3, 58, 3, -1),
    Sketcher.Constraint("Symmetric", 56, 3, 59, 3, -1),
    Sketcher.Constraint("Symmetric", 61, 3, 62, 3, -1),
    Sketcher.Constraint("Symmetric", 60, 3, 63, 3, -1),
    Sketcher.Constraint("Symmetric", 65, 3, 66, 3, -1),
    Sketcher.Constraint("Symmetric", 64, 3, 67, 3, -1),
    Sketcher.Constraint("Horizontal", 0, 3, 2, 3),
    Sketcher.Constraint("Horizontal", 2, 3, 4, 3),
    Sketcher.Constraint("Horizontal", 4, 3, 5, 3),
    Sketcher.Constraint("Horizontal", 5, 3, 8, 3),
    Sketcher.Constraint("Horizontal", 8, 3, 9, 3),
    Sketcher.Constraint("Horizontal", 9, 3, 12, 3),
    Sketcher.Constraint("Horizontal", 12, 3, 13, 3),
    Sketcher.Constraint("Horizontal", 13, 3, 16, 3),
    Sketcher.Constraint("Horizontal", 16, 3, 17, 3),
    Sketcher.Constraint("Horizontal", 17, 3, 20, 3),
    Sketcher.Constraint("Horizontal", 20, 3, 21, 3),
    Sketcher.Constraint("Horizontal", 21, 3, 24, 3),
    Sketcher.Constraint("Horizontal", 24, 3, 25, 3),
    Sketcher.Constraint("Horizontal", 25, 3, 28, 3),
    Sketcher.Constraint("Horizontal", 28, 3, 29, 3),
    Sketcher.Constraint("Horizontal", 29, 3, 32, 3),
    Sketcher.Constraint("Horizontal", 32, 3, 33, 3),
    Sketcher.Constraint("Horizontal", 33, 3, 36, 3),
    Sketcher.Constraint("Horizontal", 36, 3, 37, 3),
    Sketcher.Constraint("Horizontal", 37, 3, 40, 3),
    Sketcher.Constraint("Horizontal", 40, 3, 41, 3),
    Sketcher.Constraint("Horizontal", 41, 3, 44, 3),
    Sketcher.Constraint("Horizontal", 44, 3, 45, 3),
    Sketcher.Constraint("Horizontal", 45, 3, 48, 3),
    Sketcher.Constraint("Horizontal", 48, 3, 49, 3),
    Sketcher.Constraint("Horizontal", 49, 3, 52, 3),
    Sketcher.Constraint("Horizontal", 52, 3, 53, 3),
    Sketcher.Constraint("Horizontal", 53, 3, 56, 3),
    Sketcher.Constraint("Horizontal", 56, 3, 57, 3),
    Sketcher.Constraint("Horizontal", 57, 3, 60, 3),
    Sketcher.Constraint("Horizontal", 60, 3, 61, 3),
    Sketcher.Constraint("Horizontal", 61, 3, 64, 3),
    Sketcher.Constraint("Horizontal", 64, 3, 65, 3),
    Sketcher.Constraint("Diameter", 0, Q("3.2 mm")),
    Sketcher.Constraint("DistanceX", -1, 1, 0, 3, Q("783 mm")),
    Sketcher.Constraint("DistanceY", 0, 3, -1, 1, Q("3 mm")),
    Sketcher.Constraint("DistanceX", -1, 1, 2, 3, Q("777 mm")),
    Sketcher.Constraint("DistanceX", -1, 1, 8, 3, Q("688 mm")),
    Sketcher.Constraint("DistanceX", -1, 1, 9, 3, Q("682 mm")),
    Sketcher.Constraint("DistanceX", -1, 1, 16, 3, Q("593 mm")),
    Sketcher.Constraint("DistanceX", -1, 1, 17, 3, Q("587 mm")),
    Sketcher.Constraint("DistanceX", -1, 1, 24, 3, Q("498 mm")),
    Sketcher.Constraint("DistanceX", -1, 1, 25, 3, Q("492 mm")),
    Sketcher.Constraint("DistanceX", -1, 1, 32, 3, Q("403 mm")),
    Sketcher.Constraint("DistanceX", -1, 1, 33, 3, Q("397 mm")),
    Sketcher.Constraint("DistanceX", -1, 1, 40, 3, Q("308 mm")),
    Sketcher.Constraint("DistanceX", -1, 1, 41, 3, Q("302 mm")),
    Sketcher.Constraint("DistanceX", -1, 1, 48, 3, Q("213 mm")),
    Sketcher.Constraint("DistanceX", -1, 1, 49, 3, Q("207 mm")),
    Sketcher.Constraint("DistanceX", -1, 1, 56, 3, Q("118 mm")),
    Sketcher.Constraint("DistanceX", -1, 1, 57, 3, Q("112 mm")),
    Sketcher.Constraint("DistanceX", -1, 1, 64, 3, Q("23 mm")),
    Sketcher.Constraint("DistanceX", -1, 1, 65, 3, Q("17 mm")),
    Sketcher.Constraint("DistanceX", -1, 1, 4, 3, Q("735.5 mm")),
    Sketcher.Constraint("DistanceX", -1, 1, 5, 3, Q("729.5 mm")),
    Sketcher.Constraint("DistanceX", -1, 1, 12, 3, Q("640.5 mm")),
    Sketcher.Constraint("DistanceX", -1, 1, 13, 3, Q("634.5 mm")),
    Sketcher.Constraint("DistanceX", -1, 1, 20, 3, Q("545.5 mm")),
    Sketcher.Constraint("DistanceX", -1, 1, 21, 3, Q("539.5 mm")),
    Sketcher.Constraint("DistanceX", -1, 1, 28, 3, Q("450.5 mm")),
    Sketcher.Constraint("DistanceX", -1, 1, 29, 3, Q("444.5 mm")),
    Sketcher.Constraint("DistanceX", -1, 1, 36, 3, Q("355.5 mm")),
    Sketcher.Constraint("DistanceX", -1, 1, 37, 3, Q("349.5 mm")),
    Sketcher.Constraint("DistanceX", -1, 1, 44, 3, Q("260.5 mm")),
    Sketcher.Constraint("DistanceX", -1, 1, 45, 3, Q("254.5 mm")),
    Sketcher.Constraint("DistanceX", -1, 1, 52, 3, Q("165.5 mm")),
    Sketcher.Constraint("DistanceX", -1, 1, 53, 3, Q("159.5 mm")),
    Sketcher.Constraint("DistanceX", -1, 1, 60, 3, Q("70.5 mm")),
    Sketcher.Constraint("DistanceX", -1, 1, 61, 3, Q("64.5 mm")),
])
pocket2 = body.newObject("PartDesign::Pocket", "Pocket001")
pocket2.Profile = sketch3
pocket2.Length = 15
pocket2.Reversed = True

doc.recompute()
